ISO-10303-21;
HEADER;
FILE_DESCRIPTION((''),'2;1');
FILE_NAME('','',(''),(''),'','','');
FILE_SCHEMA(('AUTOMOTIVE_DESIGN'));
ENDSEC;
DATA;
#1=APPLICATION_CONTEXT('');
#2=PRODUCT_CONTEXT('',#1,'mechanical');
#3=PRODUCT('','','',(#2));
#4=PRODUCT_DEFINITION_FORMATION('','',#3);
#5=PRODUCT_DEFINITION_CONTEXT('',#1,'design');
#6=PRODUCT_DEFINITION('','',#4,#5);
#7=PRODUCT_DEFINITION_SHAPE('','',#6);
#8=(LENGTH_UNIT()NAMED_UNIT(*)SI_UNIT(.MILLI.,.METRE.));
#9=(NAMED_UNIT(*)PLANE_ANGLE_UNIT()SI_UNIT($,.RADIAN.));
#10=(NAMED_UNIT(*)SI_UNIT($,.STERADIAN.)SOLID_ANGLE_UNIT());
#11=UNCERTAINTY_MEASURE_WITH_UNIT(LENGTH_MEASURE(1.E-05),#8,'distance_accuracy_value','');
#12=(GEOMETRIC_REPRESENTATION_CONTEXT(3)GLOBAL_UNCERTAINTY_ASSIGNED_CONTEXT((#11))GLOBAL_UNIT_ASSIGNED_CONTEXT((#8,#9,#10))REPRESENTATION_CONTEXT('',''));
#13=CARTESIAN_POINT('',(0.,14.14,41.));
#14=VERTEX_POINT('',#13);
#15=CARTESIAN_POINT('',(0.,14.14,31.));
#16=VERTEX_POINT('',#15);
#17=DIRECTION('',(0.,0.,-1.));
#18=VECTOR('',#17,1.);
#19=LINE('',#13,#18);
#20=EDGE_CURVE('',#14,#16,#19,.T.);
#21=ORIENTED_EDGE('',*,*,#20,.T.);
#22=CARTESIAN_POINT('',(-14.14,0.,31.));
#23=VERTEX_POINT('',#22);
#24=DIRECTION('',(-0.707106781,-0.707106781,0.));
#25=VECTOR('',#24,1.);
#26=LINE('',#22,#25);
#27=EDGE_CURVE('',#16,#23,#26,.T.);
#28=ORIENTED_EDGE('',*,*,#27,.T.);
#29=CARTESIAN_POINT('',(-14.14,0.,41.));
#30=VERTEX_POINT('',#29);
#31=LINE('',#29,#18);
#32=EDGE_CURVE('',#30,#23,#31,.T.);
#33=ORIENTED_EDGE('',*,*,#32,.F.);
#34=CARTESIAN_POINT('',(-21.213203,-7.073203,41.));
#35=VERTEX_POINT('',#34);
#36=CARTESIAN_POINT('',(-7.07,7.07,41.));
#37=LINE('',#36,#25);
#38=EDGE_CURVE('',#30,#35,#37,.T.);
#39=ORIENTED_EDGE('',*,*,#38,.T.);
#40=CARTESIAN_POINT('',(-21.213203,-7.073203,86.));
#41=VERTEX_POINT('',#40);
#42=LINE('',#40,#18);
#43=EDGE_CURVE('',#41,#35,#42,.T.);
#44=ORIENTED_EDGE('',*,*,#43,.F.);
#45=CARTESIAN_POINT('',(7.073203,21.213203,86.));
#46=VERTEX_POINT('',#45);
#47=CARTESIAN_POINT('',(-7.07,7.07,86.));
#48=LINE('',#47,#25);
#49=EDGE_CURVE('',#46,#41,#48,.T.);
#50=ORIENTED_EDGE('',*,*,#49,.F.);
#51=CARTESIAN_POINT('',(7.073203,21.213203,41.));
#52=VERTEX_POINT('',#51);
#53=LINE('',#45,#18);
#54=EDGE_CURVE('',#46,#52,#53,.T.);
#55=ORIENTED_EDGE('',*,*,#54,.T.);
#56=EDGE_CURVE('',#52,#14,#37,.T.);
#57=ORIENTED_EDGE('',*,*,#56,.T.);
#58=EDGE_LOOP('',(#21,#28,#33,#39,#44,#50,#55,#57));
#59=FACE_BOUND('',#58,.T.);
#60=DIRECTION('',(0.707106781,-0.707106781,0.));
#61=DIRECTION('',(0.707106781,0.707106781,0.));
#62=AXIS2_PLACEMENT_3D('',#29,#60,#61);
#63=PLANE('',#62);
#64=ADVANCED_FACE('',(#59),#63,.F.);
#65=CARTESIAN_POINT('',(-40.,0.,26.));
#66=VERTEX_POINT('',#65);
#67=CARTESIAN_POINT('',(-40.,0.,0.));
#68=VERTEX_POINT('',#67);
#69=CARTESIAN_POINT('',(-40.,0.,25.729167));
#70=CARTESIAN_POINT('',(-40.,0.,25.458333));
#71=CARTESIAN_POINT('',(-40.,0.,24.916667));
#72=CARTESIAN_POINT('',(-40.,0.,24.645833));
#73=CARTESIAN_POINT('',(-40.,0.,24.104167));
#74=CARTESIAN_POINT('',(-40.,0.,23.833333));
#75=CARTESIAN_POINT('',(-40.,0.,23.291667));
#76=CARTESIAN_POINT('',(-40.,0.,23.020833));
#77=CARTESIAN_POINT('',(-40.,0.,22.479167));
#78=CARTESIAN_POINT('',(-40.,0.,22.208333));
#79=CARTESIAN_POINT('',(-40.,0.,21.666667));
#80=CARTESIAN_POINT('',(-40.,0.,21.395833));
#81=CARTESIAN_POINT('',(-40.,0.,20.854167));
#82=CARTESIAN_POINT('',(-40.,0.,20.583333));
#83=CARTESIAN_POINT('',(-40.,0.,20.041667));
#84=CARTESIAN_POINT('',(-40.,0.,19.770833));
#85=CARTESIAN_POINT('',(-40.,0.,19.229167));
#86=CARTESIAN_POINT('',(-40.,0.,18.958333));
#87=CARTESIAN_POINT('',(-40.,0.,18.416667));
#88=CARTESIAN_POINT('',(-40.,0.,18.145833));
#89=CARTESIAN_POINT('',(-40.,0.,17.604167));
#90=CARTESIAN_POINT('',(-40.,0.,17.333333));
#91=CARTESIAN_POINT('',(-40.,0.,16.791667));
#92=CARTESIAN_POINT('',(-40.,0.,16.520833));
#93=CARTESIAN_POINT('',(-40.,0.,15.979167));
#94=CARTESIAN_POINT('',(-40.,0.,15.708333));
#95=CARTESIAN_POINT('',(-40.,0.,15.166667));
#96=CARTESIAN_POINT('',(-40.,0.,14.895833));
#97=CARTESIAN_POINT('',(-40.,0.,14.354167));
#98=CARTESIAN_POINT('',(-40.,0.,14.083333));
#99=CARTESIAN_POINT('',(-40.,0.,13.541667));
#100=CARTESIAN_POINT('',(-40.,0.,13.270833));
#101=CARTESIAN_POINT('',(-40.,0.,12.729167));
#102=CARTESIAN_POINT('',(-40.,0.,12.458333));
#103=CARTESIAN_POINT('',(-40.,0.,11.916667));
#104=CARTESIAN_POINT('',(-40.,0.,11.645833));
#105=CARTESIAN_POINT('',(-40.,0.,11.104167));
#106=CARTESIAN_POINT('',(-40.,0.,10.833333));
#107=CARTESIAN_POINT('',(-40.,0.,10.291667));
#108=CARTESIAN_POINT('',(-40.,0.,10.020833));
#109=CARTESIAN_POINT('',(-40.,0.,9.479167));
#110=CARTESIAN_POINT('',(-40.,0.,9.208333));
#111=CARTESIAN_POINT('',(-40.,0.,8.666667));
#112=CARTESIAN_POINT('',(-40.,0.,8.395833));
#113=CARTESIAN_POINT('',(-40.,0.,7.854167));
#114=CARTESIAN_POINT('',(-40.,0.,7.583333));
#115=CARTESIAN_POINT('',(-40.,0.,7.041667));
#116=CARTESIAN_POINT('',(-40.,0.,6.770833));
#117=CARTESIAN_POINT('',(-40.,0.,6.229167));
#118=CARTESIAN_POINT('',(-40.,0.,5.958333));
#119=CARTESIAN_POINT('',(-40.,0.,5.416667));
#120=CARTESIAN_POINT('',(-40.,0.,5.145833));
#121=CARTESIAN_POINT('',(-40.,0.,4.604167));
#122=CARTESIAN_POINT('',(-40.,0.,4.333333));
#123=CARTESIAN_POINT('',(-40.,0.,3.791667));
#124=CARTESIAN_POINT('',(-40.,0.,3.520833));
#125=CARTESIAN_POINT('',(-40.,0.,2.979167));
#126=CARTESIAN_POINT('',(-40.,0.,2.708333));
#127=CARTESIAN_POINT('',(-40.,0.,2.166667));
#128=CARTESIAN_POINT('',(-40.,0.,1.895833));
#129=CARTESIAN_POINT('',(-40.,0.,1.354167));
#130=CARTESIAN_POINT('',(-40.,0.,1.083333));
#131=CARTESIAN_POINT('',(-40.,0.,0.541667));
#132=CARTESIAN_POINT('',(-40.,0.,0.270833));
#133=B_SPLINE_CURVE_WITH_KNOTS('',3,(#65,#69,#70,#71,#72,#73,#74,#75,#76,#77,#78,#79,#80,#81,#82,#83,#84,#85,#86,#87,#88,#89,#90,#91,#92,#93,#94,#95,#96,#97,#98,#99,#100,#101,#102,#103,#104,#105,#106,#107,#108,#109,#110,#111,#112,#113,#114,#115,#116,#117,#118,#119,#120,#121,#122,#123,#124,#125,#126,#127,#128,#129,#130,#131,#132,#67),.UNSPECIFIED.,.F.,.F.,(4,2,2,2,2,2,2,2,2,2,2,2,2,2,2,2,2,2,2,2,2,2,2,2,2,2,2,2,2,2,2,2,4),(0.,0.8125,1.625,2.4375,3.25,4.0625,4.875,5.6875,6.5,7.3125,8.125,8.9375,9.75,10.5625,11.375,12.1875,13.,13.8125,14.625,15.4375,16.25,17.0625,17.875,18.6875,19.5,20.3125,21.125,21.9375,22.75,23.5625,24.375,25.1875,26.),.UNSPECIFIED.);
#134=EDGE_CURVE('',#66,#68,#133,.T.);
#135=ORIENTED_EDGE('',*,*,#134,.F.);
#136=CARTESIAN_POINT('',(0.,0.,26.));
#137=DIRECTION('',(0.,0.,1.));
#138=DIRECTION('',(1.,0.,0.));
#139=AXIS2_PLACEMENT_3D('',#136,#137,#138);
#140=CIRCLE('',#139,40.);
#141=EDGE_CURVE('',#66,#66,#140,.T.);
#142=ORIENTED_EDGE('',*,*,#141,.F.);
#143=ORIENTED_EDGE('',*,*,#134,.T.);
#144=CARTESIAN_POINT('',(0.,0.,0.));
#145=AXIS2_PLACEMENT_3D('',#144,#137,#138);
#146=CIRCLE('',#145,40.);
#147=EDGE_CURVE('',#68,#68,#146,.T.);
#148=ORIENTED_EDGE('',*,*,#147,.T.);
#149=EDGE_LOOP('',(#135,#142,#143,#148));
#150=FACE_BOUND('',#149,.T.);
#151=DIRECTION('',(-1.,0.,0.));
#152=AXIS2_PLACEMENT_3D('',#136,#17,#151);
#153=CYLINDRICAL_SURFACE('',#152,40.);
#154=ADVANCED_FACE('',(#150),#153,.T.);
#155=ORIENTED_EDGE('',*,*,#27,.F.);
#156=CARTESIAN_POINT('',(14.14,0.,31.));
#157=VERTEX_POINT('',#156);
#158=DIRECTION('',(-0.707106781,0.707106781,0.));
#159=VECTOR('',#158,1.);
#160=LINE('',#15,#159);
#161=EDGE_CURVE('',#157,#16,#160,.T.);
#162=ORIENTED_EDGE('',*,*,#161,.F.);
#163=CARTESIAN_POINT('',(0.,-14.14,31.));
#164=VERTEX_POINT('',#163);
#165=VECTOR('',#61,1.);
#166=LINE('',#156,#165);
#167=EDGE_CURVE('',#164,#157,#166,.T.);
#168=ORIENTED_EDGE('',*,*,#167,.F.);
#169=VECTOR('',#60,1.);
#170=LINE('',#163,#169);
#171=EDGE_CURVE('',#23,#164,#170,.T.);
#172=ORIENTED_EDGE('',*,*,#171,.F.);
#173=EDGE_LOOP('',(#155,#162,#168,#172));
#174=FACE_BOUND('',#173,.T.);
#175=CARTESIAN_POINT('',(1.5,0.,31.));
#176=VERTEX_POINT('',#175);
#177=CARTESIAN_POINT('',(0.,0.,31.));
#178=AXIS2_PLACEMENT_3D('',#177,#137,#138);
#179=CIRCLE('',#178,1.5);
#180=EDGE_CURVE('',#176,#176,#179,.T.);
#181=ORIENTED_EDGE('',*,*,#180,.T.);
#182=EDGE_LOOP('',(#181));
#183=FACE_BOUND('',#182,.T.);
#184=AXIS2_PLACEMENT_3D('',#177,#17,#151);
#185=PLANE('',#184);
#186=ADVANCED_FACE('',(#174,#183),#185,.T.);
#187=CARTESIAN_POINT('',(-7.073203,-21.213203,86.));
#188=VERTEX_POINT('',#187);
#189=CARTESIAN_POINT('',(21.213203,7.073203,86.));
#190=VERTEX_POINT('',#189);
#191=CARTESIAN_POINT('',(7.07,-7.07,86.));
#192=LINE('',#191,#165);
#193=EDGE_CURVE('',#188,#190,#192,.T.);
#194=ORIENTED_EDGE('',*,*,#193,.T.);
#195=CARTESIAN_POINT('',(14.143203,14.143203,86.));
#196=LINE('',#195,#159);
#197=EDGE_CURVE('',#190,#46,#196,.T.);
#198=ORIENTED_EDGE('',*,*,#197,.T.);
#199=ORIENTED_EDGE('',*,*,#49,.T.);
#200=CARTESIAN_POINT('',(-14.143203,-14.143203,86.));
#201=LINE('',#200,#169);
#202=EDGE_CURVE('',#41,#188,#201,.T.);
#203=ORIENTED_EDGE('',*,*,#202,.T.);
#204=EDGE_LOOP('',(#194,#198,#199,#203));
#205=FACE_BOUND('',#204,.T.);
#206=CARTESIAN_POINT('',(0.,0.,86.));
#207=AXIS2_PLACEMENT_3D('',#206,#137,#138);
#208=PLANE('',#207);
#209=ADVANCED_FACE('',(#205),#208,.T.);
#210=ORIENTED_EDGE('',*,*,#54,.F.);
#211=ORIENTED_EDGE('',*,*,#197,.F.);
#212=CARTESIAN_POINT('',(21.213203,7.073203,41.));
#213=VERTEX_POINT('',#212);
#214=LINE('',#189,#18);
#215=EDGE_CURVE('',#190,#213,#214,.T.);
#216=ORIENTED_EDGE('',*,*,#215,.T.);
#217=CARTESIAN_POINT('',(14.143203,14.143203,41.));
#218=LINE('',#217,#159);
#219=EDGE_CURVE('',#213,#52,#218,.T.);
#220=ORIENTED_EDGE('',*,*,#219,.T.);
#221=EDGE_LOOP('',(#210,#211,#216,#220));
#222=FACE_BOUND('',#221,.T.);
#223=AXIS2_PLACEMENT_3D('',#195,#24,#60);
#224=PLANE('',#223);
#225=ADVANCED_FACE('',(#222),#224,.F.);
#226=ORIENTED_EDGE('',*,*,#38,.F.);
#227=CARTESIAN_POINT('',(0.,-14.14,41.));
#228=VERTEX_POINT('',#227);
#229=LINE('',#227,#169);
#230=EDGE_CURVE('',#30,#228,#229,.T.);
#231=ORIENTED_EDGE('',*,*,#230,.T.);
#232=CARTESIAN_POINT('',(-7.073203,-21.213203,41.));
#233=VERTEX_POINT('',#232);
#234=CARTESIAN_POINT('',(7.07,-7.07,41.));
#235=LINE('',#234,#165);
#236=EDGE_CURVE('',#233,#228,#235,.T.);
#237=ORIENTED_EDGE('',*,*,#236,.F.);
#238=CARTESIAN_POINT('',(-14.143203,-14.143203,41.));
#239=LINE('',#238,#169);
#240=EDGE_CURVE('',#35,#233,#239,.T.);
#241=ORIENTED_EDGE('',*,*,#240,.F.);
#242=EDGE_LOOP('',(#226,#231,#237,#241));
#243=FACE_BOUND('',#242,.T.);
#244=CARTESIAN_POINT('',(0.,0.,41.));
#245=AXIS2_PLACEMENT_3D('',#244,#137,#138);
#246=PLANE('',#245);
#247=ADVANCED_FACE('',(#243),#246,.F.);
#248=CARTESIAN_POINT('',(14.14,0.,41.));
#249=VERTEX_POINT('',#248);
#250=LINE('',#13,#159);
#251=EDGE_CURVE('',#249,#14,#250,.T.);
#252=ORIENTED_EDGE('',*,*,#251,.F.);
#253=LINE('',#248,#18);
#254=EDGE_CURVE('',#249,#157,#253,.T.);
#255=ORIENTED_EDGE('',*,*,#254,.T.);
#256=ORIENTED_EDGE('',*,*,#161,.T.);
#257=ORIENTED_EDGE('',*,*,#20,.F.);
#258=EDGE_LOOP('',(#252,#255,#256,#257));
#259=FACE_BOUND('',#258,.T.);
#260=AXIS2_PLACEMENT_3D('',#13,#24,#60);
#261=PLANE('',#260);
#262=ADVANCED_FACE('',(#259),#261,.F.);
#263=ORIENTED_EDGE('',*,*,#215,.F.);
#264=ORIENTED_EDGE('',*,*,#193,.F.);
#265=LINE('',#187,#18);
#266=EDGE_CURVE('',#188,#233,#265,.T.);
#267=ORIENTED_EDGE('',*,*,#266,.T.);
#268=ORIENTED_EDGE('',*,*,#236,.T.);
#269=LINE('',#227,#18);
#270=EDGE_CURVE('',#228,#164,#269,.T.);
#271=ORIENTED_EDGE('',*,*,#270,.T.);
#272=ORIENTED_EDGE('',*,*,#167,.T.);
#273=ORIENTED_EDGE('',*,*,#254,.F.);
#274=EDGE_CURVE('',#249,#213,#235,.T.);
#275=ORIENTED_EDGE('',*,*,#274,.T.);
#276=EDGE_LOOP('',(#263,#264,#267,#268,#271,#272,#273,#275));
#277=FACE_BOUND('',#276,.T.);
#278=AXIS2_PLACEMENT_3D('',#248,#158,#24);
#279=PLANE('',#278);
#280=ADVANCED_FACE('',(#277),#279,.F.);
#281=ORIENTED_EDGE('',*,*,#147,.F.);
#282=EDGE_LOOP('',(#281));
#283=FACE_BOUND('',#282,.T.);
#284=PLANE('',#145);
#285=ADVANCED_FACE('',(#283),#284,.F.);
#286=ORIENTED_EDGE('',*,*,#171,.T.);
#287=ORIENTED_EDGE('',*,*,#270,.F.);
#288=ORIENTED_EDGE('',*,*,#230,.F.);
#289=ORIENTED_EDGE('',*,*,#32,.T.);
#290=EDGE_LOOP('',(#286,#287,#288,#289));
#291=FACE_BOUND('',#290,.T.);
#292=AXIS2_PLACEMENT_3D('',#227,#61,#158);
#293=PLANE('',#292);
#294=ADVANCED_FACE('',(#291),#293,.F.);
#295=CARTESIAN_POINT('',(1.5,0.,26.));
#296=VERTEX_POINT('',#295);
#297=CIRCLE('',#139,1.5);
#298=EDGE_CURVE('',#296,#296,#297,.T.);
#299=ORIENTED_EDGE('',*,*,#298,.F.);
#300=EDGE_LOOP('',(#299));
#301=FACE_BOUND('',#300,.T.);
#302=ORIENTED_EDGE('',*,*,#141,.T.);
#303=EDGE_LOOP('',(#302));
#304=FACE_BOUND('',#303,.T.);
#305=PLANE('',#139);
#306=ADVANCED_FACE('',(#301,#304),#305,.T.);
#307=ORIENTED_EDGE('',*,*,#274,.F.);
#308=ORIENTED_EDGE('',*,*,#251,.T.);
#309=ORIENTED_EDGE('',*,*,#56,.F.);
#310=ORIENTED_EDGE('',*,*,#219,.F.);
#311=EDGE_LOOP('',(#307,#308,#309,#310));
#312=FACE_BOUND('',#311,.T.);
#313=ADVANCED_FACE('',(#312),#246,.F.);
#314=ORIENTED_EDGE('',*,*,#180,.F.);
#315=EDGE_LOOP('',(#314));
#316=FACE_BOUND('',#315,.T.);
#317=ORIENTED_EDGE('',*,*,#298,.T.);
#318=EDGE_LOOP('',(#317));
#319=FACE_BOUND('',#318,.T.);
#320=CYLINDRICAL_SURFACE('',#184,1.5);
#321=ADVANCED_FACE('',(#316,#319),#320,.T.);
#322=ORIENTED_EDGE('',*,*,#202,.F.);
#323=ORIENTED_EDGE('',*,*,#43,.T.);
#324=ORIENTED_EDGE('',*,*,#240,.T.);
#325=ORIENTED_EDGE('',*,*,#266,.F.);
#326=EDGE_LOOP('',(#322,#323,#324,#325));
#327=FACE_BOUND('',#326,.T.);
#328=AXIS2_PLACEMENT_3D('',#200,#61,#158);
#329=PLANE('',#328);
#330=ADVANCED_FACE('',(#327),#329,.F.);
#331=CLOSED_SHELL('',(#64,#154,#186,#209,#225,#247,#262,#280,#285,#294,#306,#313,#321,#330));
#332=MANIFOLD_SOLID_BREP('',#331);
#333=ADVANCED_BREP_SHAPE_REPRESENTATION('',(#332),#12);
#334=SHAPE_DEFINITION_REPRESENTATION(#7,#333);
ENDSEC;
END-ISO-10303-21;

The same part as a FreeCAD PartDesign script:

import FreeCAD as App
import Part
import Sketcher
Q = App.Units.Quantity


def add_polygon(sketch, points):
    """Adds a closed chain of lines whose ends are joined by coincident constraints."""
    first, n = sketch.GeometryCount, len(points)
    for a, b in zip(points, points[1:] + points[:1]):
        sketch.addGeometry(Part.LineSegment(App.Vector(*a, 0), App.Vector(*b, 0)), False)
    for i in range(n):
        sketch.addConstraint(Sketcher.Constraint("Coincident", first + i, 2, first + (i + 1) % n, 1))

doc = App.newDocument("Part")
body = doc.addObject("PartDesign::Body", "Body")

# Sketch on XY plane
sketch1 = doc.addObject("Sketcher::SketchObject", "Sketch")
body.addObject(sketch1)
sketch1.AttachmentSupport = (doc.XY_Plane, [""])
sketch1.MapMode = "FlatFace"
sketch1.addGeometry(Part.Circle(App.Vector(0, 0, 0), App.Vector(0, 0, 1), 40), False)
sketch1.addConstraint(Sketcher.Constraint("Coincident", 0, 3, -1, 1))
sketch1.addConstraint(Sketcher.Constraint("Diameter", 0, Q("80 mm")))
pad1 = doc.addObject("PartDesign::Pad", "Pad")
body.addObject(pad1)
pad1.Profile = sketch1
pad1.Length = 26

# Sketch on XY plane
sketch2 = doc.addObject("Sketcher::SketchObject", "Sketch001")
body.addObject(sketch2)
sketch2.AttachmentSupport = (doc.XY_Plane, [""])
sketch2.MapMode = "FlatFace"
sketch2.AttachmentOffset = App.Placement(App.Vector(0, 0, 26), App.Rotation())
sketch2.addGeometry(Part.Circle(App.Vector(0, 0, 0), App.Vector(0, 0, 1), 1.5), False)
sketch2.addConstraint(Sketcher.Constraint("Coincident", 0, 3, -1, 1))
sketch2.addConstraint(Sketcher.Constraint("Diameter", 0, Q("3 mm")))
pad2 = doc.addObject("PartDesign::Pad", "Pad001")
body.addObject(pad2)
pad2.Profile = sketch2
pad2.Length = 5

# Sketch on XY plane
sketch3 = doc.addObject("Sketcher::SketchObject", "Sketch002")
body.addObject(sketch3)
sketch3.AttachmentSupport = (doc.XY_Plane, [""])
sketch3.MapMode = "FlatFace"
sketch3.AttachmentOffset = App.Placement(App.Vector(0, 0, 31), App.Rotation())
add_polygon(sketch3, [(14, 0), (0, 14), (-14, 0), (0, -14)])  # lines 0-3
sketch3.addConstraint(Sketcher.Constraint("Symmetric", 0, 2, 2, 2, -1, 1))
sketch3.addConstraint(Sketcher.Constraint("Symmetric", 1, 2, 3, 2, -1, 1))
sketch3.addConstraint(Sketcher.Constraint("PointOnObject", 0, 2, -2))
sketch3.addConstraint(Sketcher.Constraint("PointOnObject", 1, 2, -1))
sketch3.addConstraint(Sketcher.Constraint("Perpendicular", 0, 1))
sketch3.addConstraint(Sketcher.Constraint("DistanceY", -1, 1, 0, 2, Q("14.14 mm")))
pad3 = doc.addObject("PartDesign::Pad", "Pad002")
body.addObject(pad3)
pad3.Profile = sketch3
pad3.Length = 10

# Sketch on XY plane
sketch4 = doc.addObject("Sketcher::SketchObject", "Sketch003")
body.addObject(sketch4)
sketch4.AttachmentSupport = (doc.XY_Plane, [""])
sketch4.MapMode = "FlatFace"
sketch4.AttachmentOffset = App.Placement(App.Vector(0, 0, 41), App.Rotation())
add_polygon(sketch4, [(-21, -7), (-7, -21), (21, 7), (7, 21)])  # lines 0-3
sketch4.addConstraint(Sketcher.Constraint("Symmetric", 0, 2, 2, 2, -1, 1))
sketch4.addConstraint(Sketcher.Constraint("Symmetric", 1, 2, 3, 2, -1, 1))
sketch4.addConstraint(Sketcher.Constraint("Perpendicular", 0, 1))
sketch4.addConstraint(Sketcher.Constraint("Angle", 0, Q("-45 deg")))
sketch4.addConstraint(Sketcher.Constraint("DistanceX", 2, 2, 1, 2, Q("14.14 mm")))
sketch4.addConstraint(Sketcher.Constraint("Distance", 1, Q("40.00302 mm")))
pad4 = doc.addObject("PartDesign::Pad", "Pad003")
body.addObject(pad4)
pad4.Profile = sketch4
pad4.Length = 45

doc.recompute()
